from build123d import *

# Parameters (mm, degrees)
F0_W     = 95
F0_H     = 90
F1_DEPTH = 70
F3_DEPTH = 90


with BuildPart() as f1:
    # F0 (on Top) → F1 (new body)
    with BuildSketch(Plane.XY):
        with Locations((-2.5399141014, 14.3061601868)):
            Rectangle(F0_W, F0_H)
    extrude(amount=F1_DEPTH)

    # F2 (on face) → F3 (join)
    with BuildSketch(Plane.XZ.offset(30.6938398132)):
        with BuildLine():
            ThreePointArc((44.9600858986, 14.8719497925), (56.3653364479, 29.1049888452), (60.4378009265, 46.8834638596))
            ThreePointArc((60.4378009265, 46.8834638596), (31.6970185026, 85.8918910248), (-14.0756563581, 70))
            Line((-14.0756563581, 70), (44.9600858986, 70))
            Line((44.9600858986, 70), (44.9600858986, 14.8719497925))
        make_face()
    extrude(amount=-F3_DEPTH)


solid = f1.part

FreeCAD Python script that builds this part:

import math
import FreeCAD as App
import Part
import Sketcher

doc = App.newDocument("Part")
body = doc.addObject("PartDesign::Body", "Body")

# Sketch on XY plane
sketch1 = body.newObject("Sketcher::SketchObject", "Sketch")
sketch1.AttachmentSupport = (doc.getObject("XY_Plane"), [""])
sketch1.MapMode = "FlatFace"
sketch1.addGeometry(Part.LineSegment(App.Vector(-50, 59, 0), App.Vector(-50, -31, 0)), False)
sketch1.addGeometry(Part.LineSegment(App.Vector(-50, -31, 0), App.Vector(45, -31, 0)), False)
sketch1.addGeometry(Part.LineSegment(App.Vector(45, -31, 0), App.Vector(45, 59, 0)), False)
sketch1.addGeometry(Part.LineSegment(App.Vector(45, 59, 0), App.Vector(-50, 59, 0)), False)
sketch1.addConstraint(Sketcher.Constraint("Coincident", 0, 2, 1, 1))
sketch1.addConstraint(Sketcher.Constraint("Coincident", 1, 2, 2, 1))
sketch1.addConstraint(Sketcher.Constraint("Coincident", 2, 2, 3, 1))
sketch1.addConstraint(Sketcher.Constraint("Coincident", 3, 2, 0, 1))
sketch1.addConstraint(Sketcher.Constraint("Vertical", 0))
sketch1.addConstraint(Sketcher.Constraint("Horizontal", 1))
sketch1.addConstraint(Sketcher.Constraint("Vertical", 2))
sketch1.addConstraint(Sketcher.Constraint("Horizontal", 3))
sketch1.addConstraint(Sketcher.Constraint("DistanceX", 1, 1, 1, 2, 95.0))
sketch1.addConstraint(Sketcher.Constraint("DistanceY", 0, 2, 0, 1, 90.0))
sketch1.addConstraint(Sketcher.Constraint("DistanceY", 0, 2, -1, 1, 30.69384))
sketch1.addConstraint(Sketcher.Constraint("DistanceX", 0, 2, -1, 1, 50.039914))
pad1 = body.newObject("PartDesign::Pad", "Pad")
pad1.Profile = sketch1
pad1.Length = 70

# Sketch on XZ plane
sketch2 = body.newObject("Sketcher::SketchObject", "Sketch001")
sketch2.AttachmentSupport = (doc.getObject("XZ_Plane"), [""])
sketch2.MapMode = "FlatFace"
sketch2.AttachmentOffset = App.Placement(App.Vector(0, 0, 30.69384), App.Rotation())
sketch2.addGeometry(Part.ArcOfCircle(Part.Circle(App.Vector(20, 47, 0), App.Vector(0, 0, 1), 41), math.radians(-52), math.radians(0)), False)
sketch2.addGeometry(Part.ArcOfCircle(Part.Circle(App.Vector(20, 47, 0), App.Vector(0, 0, 1), 41), math.radians(0), math.radians(146)), False)
sketch2.addGeometry(Part.LineSegment(App.Vector(-14, 70, 0), App.Vector(45, 70, 0)), False)
sketch2.addGeometry(Part.LineSegment(App.Vector(45, 70, 0), App.Vector(45, 15, 0)), False)
sketch2.addConstraint(Sketcher.Constraint("Tangent", 0, 2, 1, 1))
sketch2.addConstraint(Sketcher.Constraint("Coincident", 1, 2, 2, 1))
sketch2.addConstraint(Sketcher.Constraint("Coincident", 2, 2, 3, 1))
sketch2.addConstraint(Sketcher.Constraint("Coincident", 3, 2, 0, 1))
sketch2.addConstraint(Sketcher.Constraint("Horizontal", 2))
sketch2.addConstraint(Sketcher.Constraint("Vertical", 3))
sketch2.addConstraint(Sketcher.Constraint("Equal", 0, 1))
sketch2.addConstraint(Sketcher.Constraint("Horizontal", 1, 3, 0, 2))
sketch2.addConstraint(Sketcher.Constraint("DistanceY", -1, 1, 1, 2, 70.0))
sketch2.addConstraint(Sketcher.Constraint("Radius", 0, 40.842485))
sketch2.addConstraint(Sketcher.Constraint("DistanceY", 3, 2, 3, 1, 55.12805))
sketch2.addConstraint(Sketcher.Constraint("DistanceX", -1, 1, 0, 2, 60.437801))
sketch2.addConstraint(Sketcher.Constraint("DistanceX", 2, 1, 2, 2, 59.035742))
pad2 = body.newObject("PartDesign::Pad", "Pad001")
pad2.Profile = sketch2
pad2.Length = 90
pad2.Reversed = True

doc.recompute()
